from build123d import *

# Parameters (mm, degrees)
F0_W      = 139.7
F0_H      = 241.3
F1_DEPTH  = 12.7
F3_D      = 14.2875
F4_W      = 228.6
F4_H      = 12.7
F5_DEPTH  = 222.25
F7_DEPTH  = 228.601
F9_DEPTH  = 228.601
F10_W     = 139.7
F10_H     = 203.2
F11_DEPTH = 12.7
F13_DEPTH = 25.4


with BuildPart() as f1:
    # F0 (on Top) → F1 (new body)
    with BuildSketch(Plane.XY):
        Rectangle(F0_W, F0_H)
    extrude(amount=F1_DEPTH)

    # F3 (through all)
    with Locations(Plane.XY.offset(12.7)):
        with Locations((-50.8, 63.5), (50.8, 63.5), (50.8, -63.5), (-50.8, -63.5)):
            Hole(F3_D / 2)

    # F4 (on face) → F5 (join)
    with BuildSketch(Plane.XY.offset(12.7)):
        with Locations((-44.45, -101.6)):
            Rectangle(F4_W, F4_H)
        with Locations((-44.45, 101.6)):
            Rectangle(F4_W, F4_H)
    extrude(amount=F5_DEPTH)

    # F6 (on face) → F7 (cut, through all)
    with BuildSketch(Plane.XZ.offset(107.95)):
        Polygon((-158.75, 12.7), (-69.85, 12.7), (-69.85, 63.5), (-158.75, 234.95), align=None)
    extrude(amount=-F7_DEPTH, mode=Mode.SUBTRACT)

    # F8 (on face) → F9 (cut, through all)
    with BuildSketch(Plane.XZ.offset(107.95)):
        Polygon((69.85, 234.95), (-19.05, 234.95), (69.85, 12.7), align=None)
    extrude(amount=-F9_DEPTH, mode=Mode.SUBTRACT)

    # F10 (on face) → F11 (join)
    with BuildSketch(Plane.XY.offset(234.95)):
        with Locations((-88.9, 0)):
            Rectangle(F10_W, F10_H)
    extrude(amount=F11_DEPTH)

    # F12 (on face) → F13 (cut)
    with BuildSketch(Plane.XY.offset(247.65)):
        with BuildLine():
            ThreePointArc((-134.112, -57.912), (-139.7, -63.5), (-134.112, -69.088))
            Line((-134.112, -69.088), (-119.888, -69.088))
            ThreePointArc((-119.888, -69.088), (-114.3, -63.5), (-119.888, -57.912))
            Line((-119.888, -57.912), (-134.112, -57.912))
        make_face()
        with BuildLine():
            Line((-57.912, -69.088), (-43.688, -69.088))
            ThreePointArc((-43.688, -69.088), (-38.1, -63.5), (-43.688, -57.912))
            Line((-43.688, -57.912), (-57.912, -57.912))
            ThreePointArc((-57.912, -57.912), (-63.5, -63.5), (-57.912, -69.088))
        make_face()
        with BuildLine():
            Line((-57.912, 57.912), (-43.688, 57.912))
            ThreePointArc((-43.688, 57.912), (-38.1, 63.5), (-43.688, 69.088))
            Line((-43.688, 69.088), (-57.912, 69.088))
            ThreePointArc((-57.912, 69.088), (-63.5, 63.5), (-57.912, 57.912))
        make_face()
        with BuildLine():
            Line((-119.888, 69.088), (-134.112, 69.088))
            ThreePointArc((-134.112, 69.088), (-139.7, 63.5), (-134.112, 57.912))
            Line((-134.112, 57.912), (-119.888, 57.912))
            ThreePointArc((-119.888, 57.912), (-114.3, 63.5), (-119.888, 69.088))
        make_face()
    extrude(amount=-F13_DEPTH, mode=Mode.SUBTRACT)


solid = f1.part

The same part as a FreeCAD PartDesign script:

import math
import FreeCAD as App
import Part
import Sketcher
Q = App.Units.Quantity

doc = App.newDocument("Part")
params = doc.addObject("Spreadsheet::Sheet", "Params")
for row, (alias, value) in enumerate([
    ("sketch1_width", "5.5 in"),
    ("sketch1_height", "9.5 in"),
    ("pad1_length", "0.5 in"),
    ("sketch2_diameter", "0.5625 in"),
    ("hole_diameter", "0.5625 in"),
    ("sketch3_width", "9 in"),
    ("sketch3_height", "0.5 in"),
    ("pad2_length", "8.75 in"),
    ("sketch4_height", "2 in"),
    ("sketch4_width", "3.5 in"),
    ("sketch4_height2", "8.75 in"),
    ("sketch5_width", "3.5 in"),
    ("sketch5_height", "8.75 in"),
    ("sketch6_height", "8 in"),
    ("sketch6_width", "5.5 in"),
    ("pad3_length", "0.5 in"),
    ("sketch7_radius", "0.22 in"),
    ("sketch7_width", "0.56 in"),
    ("pocket3_length", "1 in"),
], start=1):
    params.set(f"A{row}", alias)
    params.set(f"B{row}", "=" + value)
    params.setAlias(f"B{row}", alias)

body = doc.addObject("PartDesign::Body", "Body")

sketch1 = body.newObject("Sketcher::SketchObject", "Sketch")
sketch1.AttachmentSupport = (doc.getObject("XY_Plane"), [""])
sketch1.MapMode = "FlatFace"
sketch1.addGeometry([
    Part.LineSegment(App.Vector(-70, 121, 0), App.Vector(-70, -121, 0)),
    Part.LineSegment(App.Vector(-70, -121, 0), App.Vector(70, -121, 0)),
    Part.LineSegment(App.Vector(70, -121, 0), App.Vector(70, 121, 0)),
    Part.LineSegment(App.Vector(70, 121, 0), App.Vector(-70, 121, 0)),
], False)
sketch1.addConstraint([
    Sketcher.Constraint("Coincident", 0, 2, 1, 1),
    Sketcher.Constraint("Coincident", 1, 2, 2, 1),
    Sketcher.Constraint("Coincident", 2, 2, 3, 1),
    Sketcher.Constraint("Coincident", 3, 2, 0, 1),
    Sketcher.Constraint("Vertical", 0),
    Sketcher.Constraint("Horizontal", 1),
    Sketcher.Constraint("Vertical", 2),
    Sketcher.Constraint("Horizontal", 3),
    Sketcher.Constraint("Symmetric", 0, 2, 2, 2, -1, 1),
    Sketcher.Constraint("DistanceX", 1, 1, 1, 2, Q("5.5 in")),
    Sketcher.Constraint("DistanceY", 0, 2, 0, 1, Q("9.5 in")),
])
sketch1.setExpression("Constraints[9]", "Params.sketch1_width")
sketch1.setExpression("Constraints[10]", "Params.sketch1_height")
pad1 = body.newObject("PartDesign::Pad", "Pad")
pad1.Profile = sketch1
pad1.setExpression("Length", "Params.pad1_length")

sketch2 = body.newObject("Sketcher::SketchObject", "Sketch001")
sketch2.AttachmentSupport = (doc.getObject("XY_Plane"), [""])
sketch2.MapMode = "FlatFace"
sketch2.AttachmentOffset = App.Placement(App.Vector(0, 0, 0.5 * 25.4), App.Rotation())
sketch2.addGeometry([
    Part.Circle(App.Vector(-51, 64, 0), App.Vector(0, 0, 1), 7),
    Part.Circle(App.Vector(51, 64, 0), App.Vector(0, 0, 1), 7),
    Part.Circle(App.Vector(51, -64, 0), App.Vector(0, 0, 1), 7),
    Part.Circle(App.Vector(-51, -64, 0), App.Vector(0, 0, 1), 7),
], False)
sketch2.addConstraint([
    Sketcher.Constraint("Equal", 0, 1),
    Sketcher.Constraint("Equal", 1, 2),
    Sketcher.Constraint("Equal", 2, 3),
    Sketcher.Constraint("Symmetric", 0, 3, 2, 3, -1, 1),
    Sketcher.Constraint("Symmetric", 1, 3, 3, 3, -1, 1),
    Sketcher.Constraint("Symmetric", 0, 3, 1, 3, -2),
    Sketcher.Constraint("Diameter", 0, Q("0.5625 in")),
    Sketcher.Constraint("DistanceX", 0, 3, -1, 1, Q("2 in")),
    Sketcher.Constraint("DistanceY", 2, 3, 1, 3, Q("5 in")),
])
sketch2.setExpression("Constraints[6]", "Params.sketch2_diameter")
doc.recompute()
hole = body.newObject("PartDesign::Hole", "Hole")
hole.Profile = sketch2
hole.ThreadType = "None"
hole.setExpression("Diameter", "Params.hole_diameter")
hole.DepthType = "ThroughAll"

sketch3 = body.newObject("Sketcher::SketchObject", "Sketch002")
sketch3.AttachmentSupport = (doc.getObject("XY_Plane"), [""])
sketch3.MapMode = "FlatFace"
sketch3.AttachmentOffset = App.Placement(App.Vector(0, 0, 0.5 * 25.4), App.Rotation())
sketch3.addGeometry([
    Part.LineSegment(App.Vector(-159, -95, 0), App.Vector(-159, -108, 0)),
    Part.LineSegment(App.Vector(-159, -108, 0), App.Vector(70, -108, 0)),
    Part.LineSegment(App.Vector(70, -108, 0), App.Vector(70, -95, 0)),
    Part.LineSegment(App.Vector(70, -95, 0), App.Vector(-159, -95, 0)),
    Part.LineSegment(App.Vector(-159, 108, 0), App.Vector(-159, 95, 0)),
    Part.LineSegment(App.Vector(-159, 95, 0), App.Vector(70, 95, 0)),
    Part.LineSegment(App.Vector(70, 95, 0), App.Vector(70, 108, 0)),
    Part.LineSegment(App.Vector(70, 108, 0), App.Vector(-159, 108, 0)),
], False)
sketch3.addConstraint([
    Sketcher.Constraint("Coincident", 0, 2, 1, 1),
    Sketcher.Constraint("Coincident", 1, 2, 2, 1),
    Sketcher.Constraint("Coincident", 2, 2, 3, 1),
    Sketcher.Constraint("Coincident", 3, 2, 0, 1),
    Sketcher.Constraint("Coincident", 4, 2, 5, 1),
    Sketcher.Constraint("Coincident", 5, 2, 6, 1),
    Sketcher.Constraint("Coincident", 6, 2, 7, 1),
    Sketcher.Constraint("Coincident", 7, 2, 4, 1),
    Sketcher.Constraint("Vertical", 0),
    Sketcher.Constraint("Horizontal", 1),
    Sketcher.Constraint("Vertical", 2),
    Sketcher.Constraint("Horizontal", 3),
    Sketcher.Constraint("Vertical", 4),
    Sketcher.Constraint("Horizontal", 5),
    Sketcher.Constraint("Vertical", 6),
    Sketcher.Constraint("Horizontal", 7),
    Sketcher.Constraint("Symmetric", 3, 2, 4, 2, -1),
    Sketcher.Constraint("Symmetric", 1, 2, 6, 2, -1),
    Sketcher.Constraint("DistanceX", 1, 1, 1, 2, Q("9 in")),
    Sketcher.Constraint("DistanceY", 0, 2, 0, 1, Q("0.5 in")),
    Sketcher.Constraint("DistanceY", 0, 2, 4, 2, Q("8 in")),
    Sketcher.Constraint("DistanceX", 0, 2, -1, 1, Q("6.25 in")),
])
sketch3.setExpression("Constraints[18]", "Params.sketch3_width")
sketch3.setExpression("Constraints[19]", "Params.sketch3_height")
pad2 = body.newObject("PartDesign::Pad", "Pad001")
pad2.Profile = sketch3
pad2.setExpression("Length", "Params.pad2_length")

sketch4 = body.newObject("Sketcher::SketchObject", "Sketch003")
sketch4.AttachmentSupport = (doc.getObject("XZ_Plane"), [""])
sketch4.MapMode = "FlatFace"
sketch4.AttachmentOffset = App.Placement(App.Vector(0, 0, 4.25 * 25.4), App.Rotation())
sketch4.addGeometry([
    Part.LineSegment(App.Vector(-159, 13, 0), App.Vector(-70, 13, 0)),
    Part.LineSegment(App.Vector(-70, 13, 0), App.Vector(-70, 64, 0)),
    Part.LineSegment(App.Vector(-70, 64, 0), App.Vector(-159, 235, 0)),
    Part.LineSegment(App.Vector(-159, 235, 0), App.Vector(-159, 13, 0)),
], False)
sketch4.addConstraint([
    Sketcher.Constraint("Coincident", 0, 2, 1, 1),
    Sketcher.Constraint("Coincident", 1, 2, 2, 1),
    Sketcher.Constraint("Coincident", 2, 2, 3, 1),
    Sketcher.Constraint("Coincident", 3, 2, 0, 1),
    Sketcher.Constraint("Horizontal", 0),
    Sketcher.Constraint("Vertical", 1),
    Sketcher.Constraint("Vertical", 3),
    Sketcher.Constraint("DistanceY", 1, 1, 1, 2, Q("2 in")),
    Sketcher.Constraint("DistanceX", 0, 1, 0, 2, Q("3.5 in")),
    Sketcher.Constraint("DistanceY", 3, 2, 3, 1, Q("8.75 in")),
    Sketcher.Constraint("DistanceY", -1, 1, 0, 2, Q("0.5 in")),
    Sketcher.Constraint("DistanceX", 0, 2, -1, 1, Q("2.75 in")),
])
sketch4.setExpression("Constraints[7]", "Params.sketch4_height")
sketch4.setExpression("Constraints[8]", "Params.sketch4_width")
sketch4.setExpression("Constraints[9]", "Params.sketch4_height2")
pocket1 = body.newObject("PartDesign::Pocket", "Pocket")
pocket1.Profile = sketch4
pocket1.Type = "ThroughAll"

sketch5 = body.newObject("Sketcher::SketchObject", "Sketch004")
sketch5.AttachmentSupport = (doc.getObject("XZ_Plane"), [""])
sketch5.MapMode = "FlatFace"
sketch5.AttachmentOffset = App.Placement(App.Vector(0, 0, 4.25 * 25.4), App.Rotation())
sketch5.addGeometry([
    Part.LineSegment(App.Vector(70, 235, 0), App.Vector(-19, 235, 0)),
    Part.LineSegment(App.Vector(-19, 235, 0), App.Vector(70, 13, 0)),
    Part.LineSegment(App.Vector(70, 13, 0), App.Vector(70, 235, 0)),
], False)
sketch5.addConstraint([
    Sketcher.Constraint("Coincident", 0, 2, 1, 1),
    Sketcher.Constraint("Coincident", 1, 2, 2, 1),
    Sketcher.Constraint("Coincident", 2, 2, 0, 1),
    Sketcher.Constraint("Horizontal", 0),
    Sketcher.Constraint("Vertical", 2),
    Sketcher.Constraint("DistanceX", 0, 2, 0, 1, Q("3.5 in")),
    Sketcher.Constraint("DistanceY", 2, 1, 2, 2, Q("8.75 in")),
    Sketcher.Constraint("DistanceY", -1, 1, 1, 2, Q("0.5 in")),
    Sketcher.Constraint("DistanceX", 0, 2, -1, 1, Q("0.75 in")),
])
sketch5.setExpression("Constraints[5]", "Params.sketch5_width")
sketch5.setExpression("Constraints[6]", "Params.sketch5_height")
pocket2 = body.newObject("PartDesign::Pocket", "Pocket001")
pocket2.Profile = sketch5
pocket2.Type = "ThroughAll"

sketch6 = body.newObject("Sketcher::SketchObject", "Sketch005")
sketch6.AttachmentSupport = (doc.getObject("XY_Plane"), [""])
sketch6.MapMode = "FlatFace"
sketch6.AttachmentOffset = App.Placement(App.Vector(0, 0, 9.25 * 25.4), App.Rotation())
sketch6.addGeometry([
    Part.LineSegment(App.Vector(-159, 102, 0), App.Vector(-159, -102, 0)),
    Part.LineSegment(App.Vector(-159, -102, 0), App.Vector(-19, -102, 0)),
    Part.LineSegment(App.Vector(-19, -102, 0), App.Vector(-19, 102, 0)),
    Part.LineSegment(App.Vector(-19, 102, 0), App.Vector(-159, 102, 0)),
], False)
sketch6.addConstraint([
    Sketcher.Constraint("Coincident", 0, 2, 1, 1),
    Sketcher.Constraint("Coincident", 1, 2, 2, 1),
    Sketcher.Constraint("Coincident", 2, 2, 3, 1),
    Sketcher.Constraint("Coincident", 3, 2, 0, 1),
    Sketcher.Constraint("Vertical", 0),
    Sketcher.Constraint("Horizontal", 1),
    Sketcher.Constraint("Vertical", 2),
    Sketcher.Constraint("Horizontal", 3),
    Sketcher.Constraint("DistanceY", 0, 2, 0, 1, Q("8 in")),
    Sketcher.Constraint("DistanceX", 1, 1, 1, 2, Q("5.5 in")),
    Sketcher.Constraint("DistanceY", 0, 2, -1, 1, Q("4 in")),
    Sketcher.Constraint("DistanceX", 0, 2, -1, 1, Q("6.25 in")),
])
sketch6.setExpression("Constraints[8]", "Params.sketch6_height")
sketch6.setExpression("Constraints[9]", "Params.sketch6_width")
pad3 = body.newObject("PartDesign::Pad", "Pad002")
pad3.Profile = sketch6
pad3.setExpression("Length", "Params.pad3_length")

sketch7 = body.newObject("Sketcher::SketchObject", "Sketch006")
sketch7.AttachmentSupport = (doc.getObject("XY_Plane"), [""])
sketch7.MapMode = "FlatFace"
sketch7.AttachmentOffset = App.Placement(App.Vector(0, 0, 9.75 * 25.4), App.Rotation())
sketch7.addGeometry([
    Part.ArcOfCircle(Part.Circle(App.Vector(-134, -64, 0), App.Vector(0, 0, 1), 6), math.radians(90), math.radians(270)),
    Part.LineSegment(App.Vector(-134, -69, 0), App.Vector(-120, -69, 0)),
    Part.ArcOfCircle(Part.Circle(App.Vector(-120, -64, 0), App.Vector(0, 0, 1), 6), math.radians(-90), math.radians(90)),
    Part.LineSegment(App.Vector(-120, -58, 0), App.Vector(-134, -58, 0)),
    Part.LineSegment(App.Vector(-58, -69, 0), App.Vector(-44, -69, 0)),
    Part.ArcOfCircle(Part.Circle(App.Vector(-44, -64, 0), App.Vector(0, 0, 1), 6), math.radians(-90), math.radians(90)),
    Part.LineSegment(App.Vector(-44, -58, 0), App.Vector(-58, -58, 0)),
    Part.ArcOfCircle(Part.Circle(App.Vector(-58, -64, 0), App.Vector(0, 0, 1), 6), math.radians(90), math.radians(270)),
    Part.LineSegment(App.Vector(-58, 58, 0), App.Vector(-44, 58, 0)),
    Part.ArcOfCircle(Part.Circle(App.Vector(-44, 64, 0), App.Vector(0, 0, 1), 6), math.radians(-90), math.radians(90)),
    Part.LineSegment(App.Vector(-44, 69, 0), App.Vector(-58, 69, 0)),
    Part.ArcOfCircle(Part.Circle(App.Vector(-58, 64, 0), App.Vector(0, 0, 1), 6), math.radians(90), math.radians(270)),
    Part.LineSegment(App.Vector(-120, 69, 0), App.Vector(-134, 69, 0)),
    Part.ArcOfCircle(Part.Circle(App.Vector(-134, 64, 0), App.Vector(0, 0, 1), 6), math.radians(90), math.radians(270)),
    Part.LineSegment(App.Vector(-134, 58, 0), App.Vector(-120, 58, 0)),
    Part.ArcOfCircle(Part.Circle(App.Vector(-120, 64, 0), App.Vector(0, 0, 1), 6), math.radians(-90), math.radians(90)),
], False)
sketch7.addConstraint([
    Sketcher.Constraint("Tangent", 0, 2, 1, 1),
    Sketcher.Constraint("Tangent", 1, 2, 2, 1),
    Sketcher.Constraint("Tangent", 2, 2, 3, 1),
    Sketcher.Constraint("Tangent", 3, 2, 0, 1),
    Sketcher.Constraint("Tangent", 4, 2, 5, 1),
    Sketcher.Constraint("Tangent", 5, 2, 6, 1),
    Sketcher.Constraint("Tangent", 6, 2, 7, 1),
    Sketcher.Constraint("Tangent", 7, 2, 4, 1),
    Sketcher.Constraint("Tangent", 8, 2, 9, 1),
    Sketcher.Constraint("Tangent", 9, 2, 10, 1),
    Sketcher.Constraint("Tangent", 10, 2, 11, 1),
    Sketcher.Constraint("Tangent", 11, 2, 8, 1),
    Sketcher.Constraint("Tangent", 12, 2, 13, 1),
    Sketcher.Constraint("Tangent", 13, 2, 14, 1),
    Sketcher.Constraint("Tangent", 14, 2, 15, 1),
    Sketcher.Constraint("Tangent", 15, 2, 12, 1),
    Sketcher.Constraint("Horizontal", 1),
    Sketcher.Constraint("Horizontal", 3),
    Sketcher.Constraint("Horizontal", 4),
    Sketcher.Constraint("Horizontal", 6),
    Sketcher.Constraint("Horizontal", 8),
    Sketcher.Constraint("Horizontal", 10),
    Sketcher.Constraint("Horizontal", 12),
    Sketcher.Constraint("Horizontal", 14),
    Sketcher.Constraint("Equal", 2, 5),
    Sketcher.Constraint("Equal", 7, 9),
    Sketcher.Constraint("Equal", 11, 13),
    Sketcher.Constraint("Symmetric", 5, 3, 9, 3, -1),
    Sketcher.Constraint("Symmetric", 0, 3, 13, 3, -1),
    Sketcher.Constraint("Horizontal", 2, 3, 5, 3),
    Sketcher.Constraint("Vertical", 7, 3, 11, 3),
    Sketcher.Constraint("Vertical", 2, 3, 15, 3),
    Sketcher.Constraint("Equal", 3, 4),
    Sketcher.Constraint("Radius", 0, Q("0.22 in")),
    Sketcher.Constraint("DistanceX", 2, 3, 5, 3, Q("3 in")),
    Sketcher.Constraint("DistanceY", 5, 3, 9, 3, Q("5 in")),
    Sketcher.Constraint("DistanceX", 1, 1, 1, 2, Q("0.56 in")),
    Sketcher.Constraint("DistanceX", 0, 3, -1, 1, Q("5.28 in")),
])
sketch7.setExpression("Constraints[33]", "Params.sketch7_radius")
sketch7.setExpression("Constraints[36]", "Params.sketch7_width")
pocket3 = body.newObject("PartDesign::Pocket", "Pocket002")
pocket3.Profile = sketch7
pocket3.setExpression("Length", "Params.pocket3_length")

doc.recompute()
